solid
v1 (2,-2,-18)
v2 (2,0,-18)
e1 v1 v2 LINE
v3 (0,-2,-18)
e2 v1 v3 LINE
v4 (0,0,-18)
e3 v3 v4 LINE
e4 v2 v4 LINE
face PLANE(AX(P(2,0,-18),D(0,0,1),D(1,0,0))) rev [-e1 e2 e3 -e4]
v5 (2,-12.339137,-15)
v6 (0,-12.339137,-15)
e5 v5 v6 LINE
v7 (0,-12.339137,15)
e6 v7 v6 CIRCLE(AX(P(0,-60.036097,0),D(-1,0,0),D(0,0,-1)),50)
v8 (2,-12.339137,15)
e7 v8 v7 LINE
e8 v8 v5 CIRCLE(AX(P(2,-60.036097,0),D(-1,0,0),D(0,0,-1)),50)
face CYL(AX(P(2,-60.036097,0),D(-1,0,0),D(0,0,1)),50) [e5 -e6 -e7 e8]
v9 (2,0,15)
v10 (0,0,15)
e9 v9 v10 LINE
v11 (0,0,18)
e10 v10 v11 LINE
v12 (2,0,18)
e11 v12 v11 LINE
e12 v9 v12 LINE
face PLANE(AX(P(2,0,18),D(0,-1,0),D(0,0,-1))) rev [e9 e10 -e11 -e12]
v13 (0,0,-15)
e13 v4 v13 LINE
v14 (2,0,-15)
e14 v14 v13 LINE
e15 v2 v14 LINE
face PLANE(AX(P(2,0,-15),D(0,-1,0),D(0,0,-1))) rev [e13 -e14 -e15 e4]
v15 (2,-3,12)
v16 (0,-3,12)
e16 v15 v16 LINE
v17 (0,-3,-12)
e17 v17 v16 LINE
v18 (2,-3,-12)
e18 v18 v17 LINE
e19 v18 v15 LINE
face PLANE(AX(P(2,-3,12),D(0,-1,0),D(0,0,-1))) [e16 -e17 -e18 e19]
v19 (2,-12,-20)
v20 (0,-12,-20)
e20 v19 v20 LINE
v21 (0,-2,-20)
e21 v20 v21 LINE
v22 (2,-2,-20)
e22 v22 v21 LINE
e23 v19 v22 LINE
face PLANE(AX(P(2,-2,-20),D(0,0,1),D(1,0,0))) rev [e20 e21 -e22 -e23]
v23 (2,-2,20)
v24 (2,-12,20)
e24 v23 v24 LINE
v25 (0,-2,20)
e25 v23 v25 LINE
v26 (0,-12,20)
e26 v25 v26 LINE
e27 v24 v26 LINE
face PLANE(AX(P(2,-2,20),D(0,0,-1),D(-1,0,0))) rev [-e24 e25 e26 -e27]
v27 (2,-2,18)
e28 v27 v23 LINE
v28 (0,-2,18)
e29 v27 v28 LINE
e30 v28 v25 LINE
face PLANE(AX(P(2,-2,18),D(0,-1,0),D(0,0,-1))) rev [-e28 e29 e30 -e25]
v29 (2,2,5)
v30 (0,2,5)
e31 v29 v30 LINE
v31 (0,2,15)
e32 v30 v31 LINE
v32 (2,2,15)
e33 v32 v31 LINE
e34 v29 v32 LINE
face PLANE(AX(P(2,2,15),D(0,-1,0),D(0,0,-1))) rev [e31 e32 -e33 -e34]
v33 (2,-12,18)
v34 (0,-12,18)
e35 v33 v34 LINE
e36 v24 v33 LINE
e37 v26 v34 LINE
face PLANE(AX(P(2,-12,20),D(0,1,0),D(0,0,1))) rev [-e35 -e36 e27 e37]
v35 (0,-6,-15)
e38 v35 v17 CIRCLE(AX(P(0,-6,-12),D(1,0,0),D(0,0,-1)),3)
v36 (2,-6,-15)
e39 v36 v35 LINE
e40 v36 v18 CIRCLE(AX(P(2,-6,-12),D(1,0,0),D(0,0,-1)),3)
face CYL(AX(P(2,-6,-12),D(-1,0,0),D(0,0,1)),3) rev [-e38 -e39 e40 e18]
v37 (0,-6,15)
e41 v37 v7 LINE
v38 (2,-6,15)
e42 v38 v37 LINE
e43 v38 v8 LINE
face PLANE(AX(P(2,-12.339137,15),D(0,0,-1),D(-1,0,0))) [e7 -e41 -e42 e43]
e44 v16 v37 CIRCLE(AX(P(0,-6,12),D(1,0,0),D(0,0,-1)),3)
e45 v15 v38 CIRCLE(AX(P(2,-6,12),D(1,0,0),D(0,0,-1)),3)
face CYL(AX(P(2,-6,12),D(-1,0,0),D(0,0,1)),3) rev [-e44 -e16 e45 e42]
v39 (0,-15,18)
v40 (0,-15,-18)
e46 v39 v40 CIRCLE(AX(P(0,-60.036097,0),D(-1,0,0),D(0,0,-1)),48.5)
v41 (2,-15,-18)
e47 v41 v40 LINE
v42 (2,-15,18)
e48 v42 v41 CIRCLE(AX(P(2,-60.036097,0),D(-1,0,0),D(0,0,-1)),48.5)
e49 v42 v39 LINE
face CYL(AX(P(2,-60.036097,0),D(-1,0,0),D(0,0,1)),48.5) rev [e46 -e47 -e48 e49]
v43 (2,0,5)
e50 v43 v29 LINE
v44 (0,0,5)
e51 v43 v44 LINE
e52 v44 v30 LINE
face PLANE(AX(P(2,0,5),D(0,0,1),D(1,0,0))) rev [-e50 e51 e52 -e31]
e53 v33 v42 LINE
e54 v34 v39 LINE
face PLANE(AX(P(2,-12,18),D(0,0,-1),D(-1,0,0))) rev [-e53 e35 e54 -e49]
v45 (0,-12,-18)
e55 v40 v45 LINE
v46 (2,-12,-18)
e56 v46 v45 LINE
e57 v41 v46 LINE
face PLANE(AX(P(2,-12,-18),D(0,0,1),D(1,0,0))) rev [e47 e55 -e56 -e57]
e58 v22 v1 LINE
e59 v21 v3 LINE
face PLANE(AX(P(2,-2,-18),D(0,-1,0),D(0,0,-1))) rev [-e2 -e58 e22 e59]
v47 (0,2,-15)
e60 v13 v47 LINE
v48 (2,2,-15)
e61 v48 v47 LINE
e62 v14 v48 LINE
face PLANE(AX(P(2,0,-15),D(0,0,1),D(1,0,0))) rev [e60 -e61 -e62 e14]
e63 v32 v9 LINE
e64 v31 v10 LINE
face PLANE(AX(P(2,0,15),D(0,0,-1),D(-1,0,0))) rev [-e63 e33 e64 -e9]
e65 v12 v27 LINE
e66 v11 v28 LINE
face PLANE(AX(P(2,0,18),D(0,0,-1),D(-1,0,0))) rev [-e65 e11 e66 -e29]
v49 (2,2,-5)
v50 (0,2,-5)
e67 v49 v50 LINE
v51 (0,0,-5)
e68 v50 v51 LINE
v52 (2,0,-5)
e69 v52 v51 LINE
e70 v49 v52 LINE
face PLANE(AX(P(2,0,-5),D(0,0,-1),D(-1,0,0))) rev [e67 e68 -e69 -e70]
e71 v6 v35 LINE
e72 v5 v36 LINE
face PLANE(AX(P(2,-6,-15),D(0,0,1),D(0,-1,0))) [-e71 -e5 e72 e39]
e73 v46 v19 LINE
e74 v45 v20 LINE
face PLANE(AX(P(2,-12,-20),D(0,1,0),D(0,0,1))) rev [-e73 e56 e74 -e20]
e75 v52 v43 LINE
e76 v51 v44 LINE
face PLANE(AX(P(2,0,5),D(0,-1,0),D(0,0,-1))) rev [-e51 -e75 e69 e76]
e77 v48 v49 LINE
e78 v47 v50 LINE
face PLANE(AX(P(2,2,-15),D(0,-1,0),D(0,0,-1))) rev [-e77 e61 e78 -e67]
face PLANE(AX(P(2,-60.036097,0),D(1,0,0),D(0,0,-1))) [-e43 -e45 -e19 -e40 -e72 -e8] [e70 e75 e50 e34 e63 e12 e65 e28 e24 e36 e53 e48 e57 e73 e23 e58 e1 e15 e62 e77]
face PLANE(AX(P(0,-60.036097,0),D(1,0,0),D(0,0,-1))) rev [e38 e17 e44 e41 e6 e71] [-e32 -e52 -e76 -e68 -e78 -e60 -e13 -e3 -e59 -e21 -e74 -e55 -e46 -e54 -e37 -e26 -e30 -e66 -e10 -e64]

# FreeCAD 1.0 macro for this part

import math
import FreeCAD as App
import Part
import Sketcher
from FreeCAD import Vector
Q = App.Units.Quantity

doc = App.newDocument("Part")
body = doc.addObject("PartDesign::Body", "Body")

# Sketch on YZ plane
sketch1 = body.newObject("Sketcher::SketchObject", "Sketch")
sketch1.AttachmentSupport = (doc.getObject("YZ_Plane"), [""])
sketch1.MapMode = "FlatFace"
sketch1.addGeometry(Part.LineSegment(Vector(0, 15, 0), Vector(0, 18, 0)), False)
sketch1.addGeometry(Part.LineSegment(Vector(0, 18, 0), Vector(-2, 18, 0)), False)
sketch1.addGeometry(Part.LineSegment(Vector(-2, 18, 0), Vector(-2, 20, 0)), False)
sketch1.addGeometry(Part.LineSegment(Vector(-2, 20, 0), Vector(-12, 20, 0)), False)
sketch1.addGeometry(Part.LineSegment(Vector(-12, 20, 0), Vector(-12, 18, 0)), False)
sketch1.addGeometry(Part.LineSegment(Vector(-12, 18, 0), Vector(-15, 18, 0)), False)
sketch1.addGeometry(Part.ArcOfCircle(Part.Circle(Vector(-60, 0, 0), Vector(0, 0, 1), 48.5), math.radians(-22), math.radians(22)), False)
sketch1.addGeometry(Part.LineSegment(Vector(-15, -18, 0), Vector(-12, -18, 0)), False)
sketch1.addGeometry(Part.LineSegment(Vector(-12, -18, 0), Vector(-12, -20, 0)), False)
sketch1.addGeometry(Part.LineSegment(Vector(-12, -20, 0), Vector(-2, -20, 0)), False)
sketch1.addGeometry(Part.LineSegment(Vector(-2, -20, 0), Vector(-2, -18, 0)), False)
sketch1.addGeometry(Part.LineSegment(Vector(-2, -18, 0), Vector(0, -18, 0)), False)
sketch1.addGeometry(Part.LineSegment(Vector(0, -18, 0), Vector(0, -15, 0)), False)
sketch1.addGeometry(Part.LineSegment(Vector(0, -15, 0), Vector(2, -15, 0)), False)
sketch1.addGeometry(Part.LineSegment(Vector(2, -15, 0), Vector(2, -5, 0)), False)
sketch1.addGeometry(Part.LineSegment(Vector(2, -5, 0), Vector(0, -5, 0)), False)
sketch1.addGeometry(Part.LineSegment(Vector(0, -5, 0), Vector(0, 5, 0)), False)
sketch1.addGeometry(Part.LineSegment(Vector(0, 5, 0), Vector(2, 5, 0)), False)
sketch1.addGeometry(Part.LineSegment(Vector(2, 5, 0), Vector(2, 15, 0)), False)
sketch1.addGeometry(Part.LineSegment(Vector(2, 15, 0), Vector(0, 15, 0)), False)
sketch1.addGeometry(Part.LineSegment(Vector(-12.3, 15, 0), Vector(-6, 15, 0)), False)
sketch1.addGeometry(Part.ArcOfCircle(Part.Circle(Vector(-6, 12, 0), Vector(0, 0, 1), 3), math.radians(0), math.radians(90)), False)
sketch1.addGeometry(Part.LineSegment(Vector(-3, 12, 0), Vector(-3, -12, 0)), False)
sketch1.addGeometry(Part.ArcOfCircle(Part.Circle(Vector(-6, -12, 0), Vector(0, 0, 1), 3), math.radians(-90), math.radians(0)), False)
sketch1.addGeometry(Part.LineSegment(Vector(-6, -15, 0), Vector(-12.3, -15, 0)), False)
sketch1.addGeometry(Part.ArcOfCircle(Part.Circle(Vector(-60, 0, 0), Vector(0, 0, 1), 50), math.radians(-17), math.radians(17)), False)
sketch1.addConstraint(Sketcher.Constraint("Coincident", 0, 2, 1, 1))
sketch1.addConstraint(Sketcher.Constraint("Coincident", 1, 2, 2, 1))
sketch1.addConstraint(Sketcher.Constraint("Coincident", 2, 2, 3, 1))
sketch1.addConstraint(Sketcher.Constraint("Coincident", 3, 2, 4, 1))
sketch1.addConstraint(Sketcher.Constraint("Coincident", 4, 2, 5, 1))
sketch1.addConstraint(Sketcher.Constraint("Coincident", 5, 2, 6, 2))
sketch1.addConstraint(Sketcher.Constraint("Coincident", 6, 1, 7, 1))
sketch1.addConstraint(Sketcher.Constraint("Coincident", 7, 2, 8, 1))
sketch1.addConstraint(Sketcher.Constraint("Coincident", 8, 2, 9, 1))
sketch1.addConstraint(Sketcher.Constraint("Coincident", 9, 2, 10, 1))
sketch1.addConstraint(Sketcher.Constraint("Coincident", 10, 2, 11, 1))
sketch1.addConstraint(Sketcher.Constraint("Coincident", 11, 2, 12, 1))
sketch1.addConstraint(Sketcher.Constraint("Coincident", 12, 2, 13, 1))
sketch1.addConstraint(Sketcher.Constraint("Coincident", 13, 2, 14, 1))
sketch1.addConstraint(Sketcher.Constraint("Coincident", 14, 2, 15, 1))
sketch1.addConstraint(Sketcher.Constraint("Coincident", 15, 2, 16, 1))
sketch1.addConstraint(Sketcher.Constraint("Coincident", 16, 2, 17, 1))
sketch1.addConstraint(Sketcher.Constraint("Coincident", 17, 2, 18, 1))
sketch1.addConstraint(Sketcher.Constraint("Coincident", 18, 2, 19, 1))
sketch1.addConstraint(Sketcher.Constraint("Coincident", 19, 2, 0, 1))
sketch1.addConstraint(Sketcher.Constraint("Tangent", 20, 2, 21, 2))
sketch1.addConstraint(Sketcher.Constraint("Tangent", 21, 1, 22, 1))
sketch1.addConstraint(Sketcher.Constraint("Tangent", 22, 2, 23, 2))
sketch1.addConstraint(Sketcher.Constraint("Tangent", 23, 1, 24, 1))
sketch1.addConstraint(Sketcher.Constraint("Coincident", 24, 2, 25, 1))
sketch1.addConstraint(Sketcher.Constraint("Coincident", 25, 2, 20, 1))
sketch1.addConstraint(Sketcher.Constraint("Vertical", 0))
sketch1.addConstraint(Sketcher.Constraint("Horizontal", 1))
sketch1.addConstraint(Sketcher.Constraint("Vertical", 2))
sketch1.addConstraint(Sketcher.Constraint("Horizontal", 3))
sketch1.addConstraint(Sketcher.Constraint("Vertical", 4))
sketch1.addConstraint(Sketcher.Constraint("Horizontal", 5))
sketch1.addConstraint(Sketcher.Constraint("Horizontal", 7))
sketch1.addConstraint(Sketcher.Constraint("Vertical", 8))
sketch1.addConstraint(Sketcher.Constraint("Horizontal", 9))
sketch1.addConstraint(Sketcher.Constraint("Vertical", 10))
sketch1.addConstraint(Sketcher.Constraint("Horizontal", 11))
sketch1.addConstraint(Sketcher.Constraint("Vertical", 12))
sketch1.addConstraint(Sketcher.Constraint("Horizontal", 13))
sketch1.addConstraint(Sketcher.Constraint("Vertical", 14))
sketch1.addConstraint(Sketcher.Constraint("Horizontal", 15))
sketch1.addConstraint(Sketcher.Constraint("Vertical", 16))
sketch1.addConstraint(Sketcher.Constraint("Horizontal", 17))
sketch1.addConstraint(Sketcher.Constraint("Vertical", 18))
sketch1.addConstraint(Sketcher.Constraint("Horizontal", 19))
sketch1.addConstraint(Sketcher.Constraint("Horizontal", 20))
sketch1.addConstraint(Sketcher.Constraint("Vertical", 22))
sketch1.addConstraint(Sketcher.Constraint("Horizontal", 24))
sketch1.addConstraint(Sketcher.Constraint("Coincident", 25, 3, 6, 3))
sketch1.addConstraint(Sketcher.Constraint("Equal", 21, 23))
sketch1.addConstraint(Sketcher.Constraint("Symmetric", 0, 2, 11, 2, -1, 1))
sketch1.addConstraint(Sketcher.Constraint("Symmetric", 15, 2, 16, 2, -1, 1))
sketch1.addConstraint(Sketcher.Constraint("Symmetric", 5, 2, 6, 1, -1))
sketch1.addConstraint(Sketcher.Constraint("Symmetric", 3, 2, 8, 2, -1))
sketch1.addConstraint(Sketcher.Constraint("Symmetric", 13, 2, 18, 2, -1))
sketch1.addConstraint(Sketcher.Constraint("PointOnObject", 0, 2, -2))
sketch1.addConstraint(Sketcher.Constraint("Horizontal", 1, 2, 4, 2))
sketch1.addConstraint(Sketcher.Constraint("Horizontal", 19, 2, 20, 2))
sketch1.addConstraint(Sketcher.Constraint("Horizontal", 13, 2, 23, 1))
sketch1.addConstraint(Sketcher.Constraint("Vertical", 2, 2, 9, 2))
sketch1.addConstraint(Sketcher.Constraint("Equal", 11, 13))
sketch1.addConstraint(Sketcher.Constraint("Equal", 7, 0))
sketch1.addConstraint(Sketcher.Constraint("Equal", 19, 2))
sketch1.addConstraint(Sketcher.Constraint("Equal", 9, 14))
sketch1.addConstraint(Sketcher.Constraint("Equal", 14, 16))
sketch1.addConstraint(Sketcher.Constraint("Radius", 21, Q("3 mm")))
sketch1.addConstraint(Sketcher.Constraint("Radius", 25, Q("50 mm")))
sketch1.addConstraint(Sketcher.Constraint("Radius", 6, Q("48.5 mm")))
sketch1.addConstraint(Sketcher.Constraint("DistanceX", 1, 2, 1, 1, Q("2 mm")))
sketch1.addConstraint(Sketcher.Constraint("DistanceX", 3, 2, 3, 1, Q("10 mm")))
sketch1.addConstraint(Sketcher.Constraint("DistanceX", 5, 2, 5, 1, Q("3 mm")))
sketch1.addConstraint(Sketcher.Constraint("DistanceX", 21, 3, -1, 1, Q("6 mm")))
pad1 = body.newObject("PartDesign::Pad", "Pad")
pad1.Profile = sketch1
pad1.Length = 2

doc.recompute()
